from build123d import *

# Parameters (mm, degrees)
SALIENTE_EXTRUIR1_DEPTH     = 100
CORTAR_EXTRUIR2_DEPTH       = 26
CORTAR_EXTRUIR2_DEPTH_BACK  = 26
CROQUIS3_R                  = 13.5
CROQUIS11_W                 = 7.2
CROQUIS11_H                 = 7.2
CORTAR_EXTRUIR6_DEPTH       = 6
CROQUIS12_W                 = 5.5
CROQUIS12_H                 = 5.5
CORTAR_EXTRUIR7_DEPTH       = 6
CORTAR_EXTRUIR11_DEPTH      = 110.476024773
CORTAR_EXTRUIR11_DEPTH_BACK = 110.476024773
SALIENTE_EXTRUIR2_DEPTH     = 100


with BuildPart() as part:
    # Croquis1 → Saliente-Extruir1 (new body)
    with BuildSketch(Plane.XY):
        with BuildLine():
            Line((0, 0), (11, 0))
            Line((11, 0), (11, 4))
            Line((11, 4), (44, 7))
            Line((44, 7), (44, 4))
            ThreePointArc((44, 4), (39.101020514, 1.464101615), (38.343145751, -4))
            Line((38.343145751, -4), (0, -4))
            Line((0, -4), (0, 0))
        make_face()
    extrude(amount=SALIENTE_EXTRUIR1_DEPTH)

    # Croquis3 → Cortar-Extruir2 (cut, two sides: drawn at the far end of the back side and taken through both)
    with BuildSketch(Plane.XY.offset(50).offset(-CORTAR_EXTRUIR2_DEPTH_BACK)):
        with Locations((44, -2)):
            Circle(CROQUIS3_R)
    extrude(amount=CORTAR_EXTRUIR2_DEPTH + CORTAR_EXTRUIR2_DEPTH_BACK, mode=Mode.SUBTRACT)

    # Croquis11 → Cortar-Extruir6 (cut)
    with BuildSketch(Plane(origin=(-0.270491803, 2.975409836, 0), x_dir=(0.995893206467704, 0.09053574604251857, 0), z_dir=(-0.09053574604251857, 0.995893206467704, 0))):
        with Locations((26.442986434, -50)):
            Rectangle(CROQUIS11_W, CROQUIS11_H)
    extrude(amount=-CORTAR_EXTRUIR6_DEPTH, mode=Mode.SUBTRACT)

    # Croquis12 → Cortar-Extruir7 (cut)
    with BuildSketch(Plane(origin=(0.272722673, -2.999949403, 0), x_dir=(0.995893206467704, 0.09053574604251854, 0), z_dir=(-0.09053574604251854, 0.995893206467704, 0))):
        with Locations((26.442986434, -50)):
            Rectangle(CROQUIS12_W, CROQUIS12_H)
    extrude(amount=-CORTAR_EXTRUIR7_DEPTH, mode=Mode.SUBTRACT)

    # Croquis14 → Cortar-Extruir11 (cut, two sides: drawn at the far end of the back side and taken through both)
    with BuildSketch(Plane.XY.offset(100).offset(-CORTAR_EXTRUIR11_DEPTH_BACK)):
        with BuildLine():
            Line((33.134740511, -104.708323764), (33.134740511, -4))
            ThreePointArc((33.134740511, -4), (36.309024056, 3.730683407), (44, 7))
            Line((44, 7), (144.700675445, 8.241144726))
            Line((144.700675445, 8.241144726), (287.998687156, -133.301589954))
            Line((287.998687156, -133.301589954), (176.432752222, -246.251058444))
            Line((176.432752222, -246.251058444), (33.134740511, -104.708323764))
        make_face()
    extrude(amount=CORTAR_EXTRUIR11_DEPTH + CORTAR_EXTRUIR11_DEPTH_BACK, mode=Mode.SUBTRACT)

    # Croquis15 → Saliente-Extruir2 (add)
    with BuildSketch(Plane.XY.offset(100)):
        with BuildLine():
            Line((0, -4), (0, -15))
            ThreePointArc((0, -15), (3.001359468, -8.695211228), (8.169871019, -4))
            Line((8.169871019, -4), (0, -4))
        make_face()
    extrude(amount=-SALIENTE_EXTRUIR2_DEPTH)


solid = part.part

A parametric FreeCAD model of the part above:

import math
import FreeCAD as App
import Part
import Sketcher
from FreeCAD import Vector

doc = App.newDocument("Part")
body = doc.addObject("PartDesign::Body", "Body")

# Sketch on XY plane
sketch1 = body.newObject("Sketcher::SketchObject", "Sketch")
sketch1.AttachmentSupport = (doc.getObject("XY_Plane"), [""])
sketch1.MapMode = "FlatFace"
sketch1.addGeometry([
    Part.LineSegment(Vector(11, 0, 0), Vector(0, 0, 0)),  # 0
    Part.LineSegment(Vector(0, 0, 0), Vector(0, -4, 0)),  # 1
    Part.LineSegment(Vector(0, -4, 0), Vector(38.3, -4, 0)),  # 2
    Part.ArcOfCircle(Part.Circle(Vector(44, -2, 0), Vector(0, 0, 1), 6), math.radians(90), math.radians(199)),  # 3
    Part.LineSegment(Vector(44, 4, 0), Vector(44, 7, 0)),  # 4
    Part.LineSegment(Vector(44, 7, 0), Vector(11, 4, 0)),  # 5
    Part.LineSegment(Vector(11, 4, 0), Vector(11, 0, 0)),  # 6
], False)
sketch1.addConstraint([
    Sketcher.Constraint("Coincident", 0, 2, 1, 1),
    Sketcher.Constraint("Coincident", 1, 2, 2, 1),
    Sketcher.Constraint("Coincident", 2, 2, 3, 2),
    Sketcher.Constraint("Coincident", 3, 1, 4, 1),
    Sketcher.Constraint("Coincident", 4, 2, 5, 1),
    Sketcher.Constraint("Coincident", 5, 2, 6, 1),
    Sketcher.Constraint("Coincident", 6, 2, 0, 1),
    Sketcher.Constraint("Horizontal", 0),
    Sketcher.Constraint("Vertical", 1),
    Sketcher.Constraint("Horizontal", 2),
    Sketcher.Constraint("Vertical", 4),
    Sketcher.Constraint("Vertical", 6),
    Sketcher.Constraint("Coincident", 0, 2, -1, 1),
    Sketcher.Constraint("Horizontal", 3, 1, 5, 2),
    Sketcher.Constraint("Equal", 1, 6),
    Sketcher.Constraint("Radius", 3, 6.0),
    Sketcher.Constraint("DistanceX", 0, 2, 0, 1, 11.0),
    Sketcher.Constraint("DistanceY", 1, 2, 1, 1, 4.0),
    Sketcher.Constraint("DistanceY", 4, 1, 4, 2, 3.0),
    Sketcher.Constraint("DistanceX", -1, 1, 3, 3, 44.0),
    Sketcher.Constraint("DistanceX", -1, 1, 3, 1, 44.0),
])
pad1 = body.newObject("PartDesign::Pad", "Pad")
pad1.Profile = sketch1
pad1.Length = 100

# Sketch on XY plane
sketch2 = body.newObject("Sketcher::SketchObject", "Sketch001")
sketch2.AttachmentSupport = (doc.getObject("XY_Plane"), [""])
sketch2.MapMode = "FlatFace"
sketch2.AttachmentOffset = App.Placement(Vector(0, 0, 50), App.Rotation())
sketch2.addGeometry(Part.Circle(Vector(44, -2, 0), Vector(0, 0, 1), 14), False)
sketch2.addConstraint([
    Sketcher.Constraint("Diameter", 0, 27.0),
    Sketcher.Constraint("DistanceX", -1, 1, 0, 3, 44.0),
    Sketcher.Constraint("DistanceY", 0, 3, -1, 1, 2.0),
])
pocket1 = body.newObject("PartDesign::Pocket", "Pocket")
pocket1.Profile = sketch2
pocket1.Type = "TwoLengths"
pocket1.Length = 26
pocket1.Length2 = 26
pocket1.Reversed = True

# Sketch on an angled plane
sketch3 = body.newObject("Sketcher::SketchObject", "Sketch002")
sketch3.Placement = App.Placement(Vector(-0.270492, 2.97541, 0), App.Rotation(Vector(0.995893206, 0.090535746, 0), Vector(0, 0, -0.999999999), Vector(-0.090535746, 0.995893206, 0), "ZXY"))
sketch3.addGeometry([
    Part.LineSegment(Vector(23, -46, 0), Vector(23, -54, 0)),
    Part.LineSegment(Vector(23, -54, 0), Vector(30, -54, 0)),
    Part.LineSegment(Vector(30, -54, 0), Vector(30, -46, 0)),
    Part.LineSegment(Vector(30, -46, 0), Vector(23, -46, 0)),
], False)
sketch3.addConstraint([
    Sketcher.Constraint("Coincident", 0, 2, 1, 1),
    Sketcher.Constraint("Coincident", 1, 2, 2, 1),
    Sketcher.Constraint("Coincident", 2, 2, 3, 1),
    Sketcher.Constraint("Coincident", 3, 2, 0, 1),
    Sketcher.Constraint("Vertical", 0),
    Sketcher.Constraint("Horizontal", 1),
    Sketcher.Constraint("Vertical", 2),
    Sketcher.Constraint("Horizontal", 3),
    Sketcher.Constraint("Equal", 3, 0),
    Sketcher.Constraint("DistanceX", 1, 1, 1, 2, 7.2),
    Sketcher.Constraint("DistanceY", 0, 2, -1, 1, 53.6),
    Sketcher.Constraint("DistanceX", -1, 1, 0, 2, 22.842986),
])
pocket2 = body.newObject("PartDesign::Pocket", "Pocket001")
pocket2.Profile = sketch3
pocket2.Length = 6

# Sketch on an angled plane
sketch4 = body.newObject("Sketcher::SketchObject", "Sketch003")
sketch4.Placement = App.Placement(Vector(0.272723, -2.999949, 0), App.Rotation(Vector(0.995893206, 0.090535746, 0), Vector(0, 0, -0.999999999), Vector(-0.090535746, 0.995893206, 0), "ZXY"))
sketch4.addGeometry([
    Part.LineSegment(Vector(24, -47, 0), Vector(24, -53, 0)),
    Part.LineSegment(Vector(24, -53, 0), Vector(29, -53, 0)),
    Part.LineSegment(Vector(29, -53, 0), Vector(29, -47, 0)),
    Part.LineSegment(Vector(29, -47, 0), Vector(24, -47, 0)),
], False)
sketch4.addConstraint([
    Sketcher.Constraint("Coincident", 0, 2, 1, 1),
    Sketcher.Constraint("Coincident", 1, 2, 2, 1),
    Sketcher.Constraint("Coincident", 2, 2, 3, 1),
    Sketcher.Constraint("Coincident", 3, 2, 0, 1),
    Sketcher.Constraint("Vertical", 0),
    Sketcher.Constraint("Horizontal", 1),
    Sketcher.Constraint("Vertical", 2),
    Sketcher.Constraint("Horizontal", 3),
    Sketcher.Constraint("Equal", 3, 0),
    Sketcher.Constraint("DistanceX", 1, 1, 1, 2, 5.5),
    Sketcher.Constraint("DistanceY", 0, 2, -1, 1, 52.75),
    Sketcher.Constraint("DistanceX", -1, 1, 0, 2, 23.692986),
])
pocket3 = body.newObject("PartDesign::Pocket", "Pocket002")
pocket3.Profile = sketch4
pocket3.Length = 6

# Sketch on XY plane
sketch5 = body.newObject("Sketcher::SketchObject", "Sketch004")
sketch5.AttachmentSupport = (doc.getObject("XY_Plane"), [""])
sketch5.MapMode = "FlatFace"
sketch5.AttachmentOffset = App.Placement(Vector(0, 0, 100), App.Rotation())
sketch5.addGeometry([
    Part.LineSegment(Vector(33, -4, 0), Vector(33, -105, 0)),  # 0
    Part.LineSegment(Vector(33, -105, 0), Vector(176, -246, 0)),  # 1
    Part.LineSegment(Vector(176, -246, 0), Vector(288, -133, 0)),  # 2
    Part.LineSegment(Vector(288, -133, 0), Vector(145, 8, 0)),  # 3
    Part.LineSegment(Vector(145, 8, 0), Vector(44, 7, 0)),  # 4
    Part.ArcOfCircle(Part.Circle(Vector(44, -4, 0), Vector(0, 0, 1), 11), math.radians(91), math.radians(180)),  # 5
], False)
sketch5.addConstraint([
    Sketcher.Constraint("Coincident", 0, 2, 1, 1),
    Sketcher.Constraint("Coincident", 1, 2, 2, 1),
    Sketcher.Constraint("Coincident", 2, 2, 3, 1),
    Sketcher.Constraint("Coincident", 3, 2, 4, 1),
    Sketcher.Constraint("Tangent", 4, 2, 5, 1),
    Sketcher.Constraint("Tangent", 5, 2, 0, 1),
    Sketcher.Constraint("Vertical", 0),
    Sketcher.Constraint("Perpendicular", 1, 2),
    Sketcher.Constraint("Perpendicular", 2, 3),
    Sketcher.Constraint("Equal", 1, 3),
    Sketcher.Constraint("DistanceY", 5, 3, -1, 1, 4.0),
    Sketcher.Constraint("DistanceX", -1, 1, 4, 2, 44.0),
    Sketcher.Constraint("DistanceY", -1, 1, 4, 2, 7.0),
    Sketcher.Constraint("DistanceX", 5, 3, 3, 2, 100.565099),
    Sketcher.Constraint("Distance", 2, 158.759379),
    Sketcher.Constraint("DistanceY", 0, 2, 0, 1, 100.708324),
    Sketcher.Constraint("DistanceY", 1, 2, -1, 1, 246.251058),
])
pocket4 = body.newObject("PartDesign::Pocket", "Pocket003")
pocket4.Profile = sketch5
pocket4.Type = "ThroughAll"
pocket4.Midplane = True

# Sketch on XY plane
sketch6 = body.newObject("Sketcher::SketchObject", "Sketch005")
sketch6.AttachmentSupport = (doc.getObject("XY_Plane"), [""])
sketch6.MapMode = "FlatFace"
sketch6.AttachmentOffset = App.Placement(Vector(0, 0, 100), App.Rotation())
sketch6.addGeometry([
    Part.LineSegment(Vector(0, -4, 0), Vector(0, -15, 0)),
    Part.ArcOfCircle(Part.Circle(Vector(18, -19, 0), Vector(0, 0, 1), 18), math.radians(121), math.radians(166)),
    Part.LineSegment(Vector(8, -4, 0), Vector(0, -4, 0)),
], False)
sketch6.addConstraint([
    Sketcher.Constraint("Coincident", 0, 2, 1, 2),
    Sketcher.Constraint("Coincident", 1, 1, 2, 1),
    Sketcher.Constraint("Coincident", 2, 2, 0, 1),
    Sketcher.Constraint("Vertical", 0),
    Sketcher.Constraint("Horizontal", 2),
    Sketcher.Constraint("PointOnObject", 0, 2, -2),
    Sketcher.Constraint("DistanceY", 0, 2, 0, 1, 11.0),
    Sketcher.Constraint("DistanceY", 0, 2, -1, 1, 15.0),
    Sketcher.Constraint("Radius", 1, 18.062071),
    Sketcher.Constraint("DistanceX", 2, 2, 2, 1, 8.169871),
])
pad2 = body.newObject("PartDesign::Pad", "Pad001")
pad2.Profile = sketch6
pad2.Length = 100
pad2.Reversed = True

doc.recompute()
